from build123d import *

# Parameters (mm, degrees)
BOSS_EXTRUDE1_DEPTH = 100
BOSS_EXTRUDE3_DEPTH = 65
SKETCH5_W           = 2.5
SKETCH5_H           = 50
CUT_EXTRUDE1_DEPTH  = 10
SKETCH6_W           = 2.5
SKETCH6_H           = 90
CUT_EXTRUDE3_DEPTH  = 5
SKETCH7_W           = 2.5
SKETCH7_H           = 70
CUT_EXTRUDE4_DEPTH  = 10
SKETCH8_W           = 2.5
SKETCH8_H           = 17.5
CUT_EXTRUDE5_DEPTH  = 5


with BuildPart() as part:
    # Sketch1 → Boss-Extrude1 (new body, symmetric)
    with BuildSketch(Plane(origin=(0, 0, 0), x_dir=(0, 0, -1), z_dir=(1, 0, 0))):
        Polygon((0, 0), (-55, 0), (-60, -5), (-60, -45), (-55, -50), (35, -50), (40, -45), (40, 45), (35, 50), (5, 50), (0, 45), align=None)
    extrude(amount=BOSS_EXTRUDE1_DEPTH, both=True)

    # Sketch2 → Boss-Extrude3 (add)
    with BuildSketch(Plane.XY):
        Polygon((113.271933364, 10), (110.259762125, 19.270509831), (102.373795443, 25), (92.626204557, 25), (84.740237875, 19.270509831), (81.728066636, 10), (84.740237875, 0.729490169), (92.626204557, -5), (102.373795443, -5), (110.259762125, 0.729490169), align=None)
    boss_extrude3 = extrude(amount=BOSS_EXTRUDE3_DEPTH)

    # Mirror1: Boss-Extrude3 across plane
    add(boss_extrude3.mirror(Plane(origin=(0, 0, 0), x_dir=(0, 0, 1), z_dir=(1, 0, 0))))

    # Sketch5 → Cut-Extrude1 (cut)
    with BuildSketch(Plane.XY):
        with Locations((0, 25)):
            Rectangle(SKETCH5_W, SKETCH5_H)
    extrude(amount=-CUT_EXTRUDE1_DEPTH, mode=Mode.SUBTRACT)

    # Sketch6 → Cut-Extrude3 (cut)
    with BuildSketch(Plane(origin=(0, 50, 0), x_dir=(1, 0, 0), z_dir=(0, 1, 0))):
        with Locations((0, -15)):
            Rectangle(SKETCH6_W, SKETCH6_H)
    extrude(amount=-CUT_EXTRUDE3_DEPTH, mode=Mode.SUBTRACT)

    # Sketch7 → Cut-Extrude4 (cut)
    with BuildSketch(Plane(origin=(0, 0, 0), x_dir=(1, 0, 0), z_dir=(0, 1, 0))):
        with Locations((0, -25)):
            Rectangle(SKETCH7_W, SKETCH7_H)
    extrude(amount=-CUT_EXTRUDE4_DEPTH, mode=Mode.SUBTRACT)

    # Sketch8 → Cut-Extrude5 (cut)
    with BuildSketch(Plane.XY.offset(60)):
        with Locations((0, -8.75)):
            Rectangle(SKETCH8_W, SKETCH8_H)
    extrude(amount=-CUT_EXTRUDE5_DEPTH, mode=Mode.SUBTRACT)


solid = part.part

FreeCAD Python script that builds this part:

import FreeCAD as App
import Part
import Sketcher

V = App.Vector
Q = App.Units.Quantity

doc = App.newDocument("Part")
body = doc.addObject("PartDesign::Body", "Body")

# Sketch on YZ plane
sketch1 = body.newObject("Sketcher::SketchObject", "Sketch")
sketch1.AttachmentSupport = (doc.getObject("YZ_Plane"), [""])
sketch1.MapMode = "FlatFace"
sketch1.addGeometry(Part.LineSegment(V(0, 0, 0), V(0, 55, 0)), False)
sketch1.addGeometry(Part.LineSegment(V(0, 55, 0), V(-5, 60, 0)), False)
sketch1.addGeometry(Part.LineSegment(V(-5, 60, 0), V(-45, 60, 0)), False)
sketch1.addGeometry(Part.LineSegment(V(-45, 60, 0), V(-50, 55, 0)), False)
sketch1.addGeometry(Part.LineSegment(V(-50, 55, 0), V(-50, -35, 0)), False)
sketch1.addGeometry(Part.LineSegment(V(-50, -35, 0), V(-45, -40, 0)), False)
sketch1.addGeometry(Part.LineSegment(V(-45, -40, 0), V(45, -40, 0)), False)
sketch1.addGeometry(Part.LineSegment(V(45, -40, 0), V(50, -35, 0)), False)
sketch1.addGeometry(Part.LineSegment(V(50, -35, 0), V(50, -5, 0)), False)
sketch1.addGeometry(Part.LineSegment(V(50, -5, 0), V(45, 0, 0)), False)
sketch1.addGeometry(Part.LineSegment(V(45, 0, 0), V(0, 0, 0)), False)
sketch1.addConstraint(Sketcher.Constraint("Coincident", 0, 2, 1, 1))
sketch1.addConstraint(Sketcher.Constraint("Coincident", 1, 2, 2, 1))
sketch1.addConstraint(Sketcher.Constraint("Coincident", 2, 2, 3, 1))
sketch1.addConstraint(Sketcher.Constraint("Coincident", 3, 2, 4, 1))
sketch1.addConstraint(Sketcher.Constraint("Coincident", 4, 2, 5, 1))
sketch1.addConstraint(Sketcher.Constraint("Coincident", 5, 2, 6, 1))
sketch1.addConstraint(Sketcher.Constraint("Coincident", 6, 2, 7, 1))
sketch1.addConstraint(Sketcher.Constraint("Coincident", 7, 2, 8, 1))
sketch1.addConstraint(Sketcher.Constraint("Coincident", 8, 2, 9, 1))
sketch1.addConstraint(Sketcher.Constraint("Coincident", 9, 2, 10, 1))
sketch1.addConstraint(Sketcher.Constraint("Coincident", 10, 2, 0, 1))
sketch1.addConstraint(Sketcher.Constraint("Vertical", 0))
sketch1.addConstraint(Sketcher.Constraint("Horizontal", 2))
sketch1.addConstraint(Sketcher.Constraint("Vertical", 4))
sketch1.addConstraint(Sketcher.Constraint("Horizontal", 6))
sketch1.addConstraint(Sketcher.Constraint("Vertical", 8))
sketch1.addConstraint(Sketcher.Constraint("Horizontal", 10))
sketch1.addConstraint(Sketcher.Constraint("Coincident", 10, 2, -1, 1))
sketch1.addConstraint(Sketcher.Constraint("Symmetric", 4, 2, 7, 2, -2))
sketch1.addConstraint(Sketcher.Constraint("Perpendicular", 1, 3))
sketch1.addConstraint(Sketcher.Constraint("Perpendicular", 3, 5))
sketch1.addConstraint(Sketcher.Constraint("Perpendicular", 5, 7))
sketch1.addConstraint(Sketcher.Constraint("Perpendicular", 7, 9))
sketch1.addConstraint(Sketcher.Constraint("Horizontal", 0, 2, 3, 2))
sketch1.addConstraint(Sketcher.Constraint("Vertical", 2, 2, 5, 2))
sketch1.addConstraint(Sketcher.Constraint("Vertical", 6, 2, 9, 2))
sketch1.addConstraint(Sketcher.Constraint("Equal", 6, 4))
sketch1.addConstraint(Sketcher.Constraint("Equal", 1, 3))
sketch1.addConstraint(Sketcher.Constraint("DistanceX", 2, 2, 2, 1, Q("40 mm")))
sketch1.addConstraint(Sketcher.Constraint("DistanceX", 6, 1, 6, 2, Q("90 mm")))
sketch1.addConstraint(Sketcher.Constraint("DistanceY", 0, 1, 0, 2, Q("55 mm")))
pad1 = body.newObject("PartDesign::Pad", "Pad")
pad1.Profile = sketch1
pad1.Length = 200
pad1.Midplane = True

# Sketch on XY plane
sketch2 = body.newObject("Sketcher::SketchObject", "Sketch001")
sketch2.AttachmentSupport = (doc.getObject("XY_Plane"), [""])
sketch2.MapMode = "FlatFace"
sketch2.addGeometry(Part.LineSegment(V(113, 10, 0), V(110, 19, 0)), False)
sketch2.addGeometry(Part.LineSegment(V(110, 19, 0), V(102, 25, 0)), False)
sketch2.addGeometry(Part.LineSegment(V(102, 25, 0), V(93, 25, 0)), False)
sketch2.addGeometry(Part.LineSegment(V(93, 25, 0), V(85, 19, 0)), False)
sketch2.addGeometry(Part.LineSegment(V(85, 19, 0), V(82, 10, 0)), False)
sketch2.addGeometry(Part.LineSegment(V(82, 10, 0), V(85, 1, 0)), False)
sketch2.addGeometry(Part.LineSegment(V(85, 1, 0), V(93, -5, 0)), False)
sketch2.addGeometry(Part.LineSegment(V(93, -5, 0), V(102, -5, 0)), False)
sketch2.addGeometry(Part.LineSegment(V(102, -5, 0), V(110, 1, 0)), False)
sketch2.addGeometry(Part.LineSegment(V(110, 1, 0), V(113, 10, 0)), False)
sketch2.addConstraint(Sketcher.Constraint("Coincident", 0, 2, 1, 1))
sketch2.addConstraint(Sketcher.Constraint("Coincident", 1, 2, 2, 1))
sketch2.addConstraint(Sketcher.Constraint("Coincident", 2, 2, 3, 1))
sketch2.addConstraint(Sketcher.Constraint("Coincident", 3, 2, 4, 1))
sketch2.addConstraint(Sketcher.Constraint("Coincident", 4, 2, 5, 1))
sketch2.addConstraint(Sketcher.Constraint("Coincident", 5, 2, 6, 1))
sketch2.addConstraint(Sketcher.Constraint("Coincident", 6, 2, 7, 1))
sketch2.addConstraint(Sketcher.Constraint("Coincident", 7, 2, 8, 1))
sketch2.addConstraint(Sketcher.Constraint("Coincident", 8, 2, 9, 1))
sketch2.addConstraint(Sketcher.Constraint("Coincident", 9, 2, 0, 1))
sketch2.addConstraint(Sketcher.Constraint("Horizontal", 2))
sketch2.addConstraint(Sketcher.Constraint("Horizontal", 7))
sketch2.addConstraint(Sketcher.Constraint("Parallel", 0, 5))
sketch2.addConstraint(Sketcher.Constraint("Parallel", 1, 6))
sketch2.addConstraint(Sketcher.Constraint("Parallel", 3, 8))
sketch2.addConstraint(Sketcher.Constraint("Parallel", 4, 9))
sketch2.addConstraint(Sketcher.Constraint("Horizontal", 0, 2, 3, 2))
sketch2.addConstraint(Sketcher.Constraint("Horizontal", 5, 2, 8, 2))
sketch2.addConstraint(Sketcher.Constraint("Horizontal", 4, 2, 9, 2))
sketch2.addConstraint(Sketcher.Constraint("Vertical", 3, 2, 5, 2))
sketch2.addConstraint(Sketcher.Constraint("Vertical", 2, 2, 6, 2))
sketch2.addConstraint(Sketcher.Constraint("Vertical", 1, 2, 7, 2))
sketch2.addConstraint(Sketcher.Constraint("Vertical", 0, 2, 8, 2))
sketch2.addConstraint(Sketcher.Constraint("Equal", 0, 1))
sketch2.addConstraint(Sketcher.Constraint("Angle", 0, Q("108 deg")))
sketch2.addConstraint(Sketcher.Constraint("Angle", 1, Q("144 deg")))
sketch2.addConstraint(Sketcher.Constraint("DistanceY", -1, 1, 1, 2, Q("25 mm")))
sketch2.addConstraint(Sketcher.Constraint("DistanceY", -1, 1, 4, 2, Q("10 mm")))
sketch2.addConstraint(Sketcher.Constraint("DistanceX", 2, 2, 2, 1, Q("9.747591 mm")))
sketch2.addConstraint(Sketcher.Constraint("DistanceX", -1, 1, 0, 2, Q("110.259762 mm")))
pad2 = body.newObject("PartDesign::Pad", "Pad001")
pad2.Profile = sketch2
pad2.Length = 65
doc.recompute()

mirrored = body.newObject("PartDesign::Mirrored", "Mirrored")
mirrored.Originals = [pad2]
mirrored.MirrorPlane = (doc.getObject("YZ_Plane"), [""])
body.Tip = mirrored

# Sketch on XY plane
sketch3 = body.newObject("Sketcher::SketchObject", "Sketch002")
sketch3.AttachmentSupport = (doc.getObject("XY_Plane"), [""])
sketch3.MapMode = "FlatFace"
sketch3.addGeometry(Part.LineSegment(V(-1.2, 50, 0), V(-1.2, 0, 0)), False)
sketch3.addGeometry(Part.LineSegment(V(-1.2, 0, 0), V(1.2, 0, 0)), False)
sketch3.addGeometry(Part.LineSegment(V(1.2, 0, 0), V(1.2, 50, 0)), False)
sketch3.addGeometry(Part.LineSegment(V(1.2, 50, 0), V(-1.2, 50, 0)), False)
sketch3.addConstraint(Sketcher.Constraint("Coincident", 0, 2, 1, 1))
sketch3.addConstraint(Sketcher.Constraint("Coincident", 1, 2, 2, 1))
sketch3.addConstraint(Sketcher.Constraint("Coincident", 2, 2, 3, 1))
sketch3.addConstraint(Sketcher.Constraint("Coincident", 3, 2, 0, 1))
sketch3.addConstraint(Sketcher.Constraint("Vertical", 0))
sketch3.addConstraint(Sketcher.Constraint("Horizontal", 1))
sketch3.addConstraint(Sketcher.Constraint("Vertical", 2))
sketch3.addConstraint(Sketcher.Constraint("Horizontal", 3))
sketch3.addConstraint(Sketcher.Constraint("Symmetric", 0, 2, 1, 2, -1, 1))
sketch3.addConstraint(Sketcher.Constraint("DistanceY", 0, 2, 0, 1, Q("50 mm")))
sketch3.addConstraint(Sketcher.Constraint("DistanceX", 1, 1, 1, 2, Q("2.5 mm")))
pocket1 = body.newObject("PartDesign::Pocket", "Pocket")
pocket1.Profile = sketch3
pocket1.Length = 10

# Sketch on XZ plane
sketch4 = body.newObject("Sketcher::SketchObject", "Sketch003")
sketch4.AttachmentSupport = (doc.getObject("XZ_Plane"), [""])
sketch4.MapMode = "FlatFace"
sketch4.AttachmentOffset = App.Placement(V(0, 0, -50), App.Rotation())
sketch4.addGeometry(Part.LineSegment(V(-1.2, -30, 0), V(-1.2, 60, 0)), False)
sketch4.addGeometry(Part.LineSegment(V(-1.2, 60, 0), V(1.2, 60, 0)), False)
sketch4.addGeometry(Part.LineSegment(V(1.2, 60, 0), V(1.2, -30, 0)), False)
sketch4.addGeometry(Part.LineSegment(V(1.2, -30, 0), V(-1.2, -30, 0)), False)
sketch4.addConstraint(Sketcher.Constraint("Coincident", 0, 2, 1, 1))
sketch4.addConstraint(Sketcher.Constraint("Coincident", 1, 2, 2, 1))
sketch4.addConstraint(Sketcher.Constraint("Coincident", 2, 2, 3, 1))
sketch4.addConstraint(Sketcher.Constraint("Coincident", 3, 2, 0, 1))
sketch4.addConstraint(Sketcher.Constraint("Vertical", 0))
sketch4.addConstraint(Sketcher.Constraint("Horizontal", 1))
sketch4.addConstraint(Sketcher.Constraint("Vertical", 2))
sketch4.addConstraint(Sketcher.Constraint("Horizontal", 3))
sketch4.addConstraint(Sketcher.Constraint("DistanceY", 0, 1, 0, 2, Q("90 mm")))
sketch4.addConstraint(Sketcher.Constraint("DistanceX", 1, 1, 1, 2, Q("2.5 mm")))
sketch4.addConstraint(Sketcher.Constraint("DistanceY", -1, 1, 0, 2, Q("60 mm")))
sketch4.addConstraint(Sketcher.Constraint("DistanceX", 0, 2, -1, 1, Q("1.25 mm")))
pocket2 = body.newObject("PartDesign::Pocket", "Pocket001")
pocket2.Profile = sketch4
pocket2.Length = 5
pocket2.Reversed = True

# Sketch on XZ plane
sketch5 = body.newObject("Sketcher::SketchObject", "Sketch004")
sketch5.AttachmentSupport = (doc.getObject("XZ_Plane"), [""])
sketch5.MapMode = "FlatFace"
sketch5.addGeometry(Part.LineSegment(V(-1.2, -10, 0), V(-1.2, 60, 0)), False)
sketch5.addGeometry(Part.LineSegment(V(-1.2, 60, 0), V(1.2, 60, 0)), False)
sketch5.addGeometry(Part.LineSegment(V(1.2, 60, 0), V(1.2, -10, 0)), False)
sketch5.addGeometry(Part.LineSegment(V(1.2, -10, 0), V(-1.2, -10, 0)), False)
sketch5.addConstraint(Sketcher.Constraint("Coincident", 0, 2, 1, 1))
sketch5.addConstraint(Sketcher.Constraint("Coincident", 1, 2, 2, 1))
sketch5.addConstraint(Sketcher.Constraint("Coincident", 2, 2, 3, 1))
sketch5.addConstraint(Sketcher.Constraint("Coincident", 3, 2, 0, 1))
sketch5.addConstraint(Sketcher.Constraint("Vertical", 0))
sketch5.addConstraint(Sketcher.Constraint("Horizontal", 1))
sketch5.addConstraint(Sketcher.Constraint("Vertical", 2))
sketch5.addConstraint(Sketcher.Constraint("Horizontal", 3))
sketch5.addConstraint(Sketcher.Constraint("DistanceY", 0, 1, 0, 2, Q("70 mm")))
sketch5.addConstraint(Sketcher.Constraint("DistanceX", 1, 1, 1, 2, Q("2.5 mm")))
sketch5.addConstraint(Sketcher.Constraint("DistanceY", -1, 1, 0, 2, Q("60 mm")))
sketch5.addConstraint(Sketcher.Constraint("DistanceX", 0, 2, -1, 1, Q("1.25 mm")))
pocket3 = body.newObject("PartDesign::Pocket", "Pocket002")
pocket3.Profile = sketch5
pocket3.Length = 10
pocket3.Reversed = True

# Sketch on XY plane
sketch6 = body.newObject("Sketcher::SketchObject", "Sketch005")
sketch6.AttachmentSupport = (doc.getObject("XY_Plane"), [""])
sketch6.MapMode = "FlatFace"
sketch6.AttachmentOffset = App.Placement(V(0, 0, 60), App.Rotation())
sketch6.addGeometry(Part.LineSegment(V(-1.2, 0, 0), V(-1.2, -17.5, 0)), False)
sketch6.addGeometry(Part.LineSegment(V(-1.2, -17.5, 0), V(1.2, -17.5, 0)), False)
sketch6.addGeometry(Part.LineSegment(V(1.2, -17.5, 0), V(1.2, 0, 0)), False)
sketch6.addGeometry(Part.LineSegment(V(1.2, 0, 0), V(-1.2, 0, 0)), False)
sketch6.addConstraint(Sketcher.Constraint("Coincident", 0, 2, 1, 1))
sketch6.addConstraint(Sketcher.Constraint("Coincident", 1, 2, 2, 1))
sketch6.addConstraint(Sketcher.Constraint("Coincident", 2, 2, 3, 1))
sketch6.addConstraint(Sketcher.Constraint("Coincident", 3, 2, 0, 1))
sketch6.addConstraint(Sketcher.Constraint("Vertical", 0))
sketch6.addConstraint(Sketcher.Constraint("Horizontal", 1))
sketch6.addConstraint(Sketcher.Constraint("Vertical", 2))
sketch6.addConstraint(Sketcher.Constraint("Horizontal", 3))
sketch6.addConstraint(Sketcher.Constraint("Symmetric", 2, 2, 3, 2, -1, 1))
sketch6.addConstraint(Sketcher.Constraint("DistanceX", 1, 1, 1, 2, Q("2.5 mm")))
sketch6.addConstraint(Sketcher.Constraint("DistanceY", 0, 2, 0, 1, Q("17.5 mm")))
pocket4 = body.newObject("PartDesign::Pocket", "Pocket003")
pocket4.Profile = sketch6
pocket4.Length = 5

doc.recompute()
